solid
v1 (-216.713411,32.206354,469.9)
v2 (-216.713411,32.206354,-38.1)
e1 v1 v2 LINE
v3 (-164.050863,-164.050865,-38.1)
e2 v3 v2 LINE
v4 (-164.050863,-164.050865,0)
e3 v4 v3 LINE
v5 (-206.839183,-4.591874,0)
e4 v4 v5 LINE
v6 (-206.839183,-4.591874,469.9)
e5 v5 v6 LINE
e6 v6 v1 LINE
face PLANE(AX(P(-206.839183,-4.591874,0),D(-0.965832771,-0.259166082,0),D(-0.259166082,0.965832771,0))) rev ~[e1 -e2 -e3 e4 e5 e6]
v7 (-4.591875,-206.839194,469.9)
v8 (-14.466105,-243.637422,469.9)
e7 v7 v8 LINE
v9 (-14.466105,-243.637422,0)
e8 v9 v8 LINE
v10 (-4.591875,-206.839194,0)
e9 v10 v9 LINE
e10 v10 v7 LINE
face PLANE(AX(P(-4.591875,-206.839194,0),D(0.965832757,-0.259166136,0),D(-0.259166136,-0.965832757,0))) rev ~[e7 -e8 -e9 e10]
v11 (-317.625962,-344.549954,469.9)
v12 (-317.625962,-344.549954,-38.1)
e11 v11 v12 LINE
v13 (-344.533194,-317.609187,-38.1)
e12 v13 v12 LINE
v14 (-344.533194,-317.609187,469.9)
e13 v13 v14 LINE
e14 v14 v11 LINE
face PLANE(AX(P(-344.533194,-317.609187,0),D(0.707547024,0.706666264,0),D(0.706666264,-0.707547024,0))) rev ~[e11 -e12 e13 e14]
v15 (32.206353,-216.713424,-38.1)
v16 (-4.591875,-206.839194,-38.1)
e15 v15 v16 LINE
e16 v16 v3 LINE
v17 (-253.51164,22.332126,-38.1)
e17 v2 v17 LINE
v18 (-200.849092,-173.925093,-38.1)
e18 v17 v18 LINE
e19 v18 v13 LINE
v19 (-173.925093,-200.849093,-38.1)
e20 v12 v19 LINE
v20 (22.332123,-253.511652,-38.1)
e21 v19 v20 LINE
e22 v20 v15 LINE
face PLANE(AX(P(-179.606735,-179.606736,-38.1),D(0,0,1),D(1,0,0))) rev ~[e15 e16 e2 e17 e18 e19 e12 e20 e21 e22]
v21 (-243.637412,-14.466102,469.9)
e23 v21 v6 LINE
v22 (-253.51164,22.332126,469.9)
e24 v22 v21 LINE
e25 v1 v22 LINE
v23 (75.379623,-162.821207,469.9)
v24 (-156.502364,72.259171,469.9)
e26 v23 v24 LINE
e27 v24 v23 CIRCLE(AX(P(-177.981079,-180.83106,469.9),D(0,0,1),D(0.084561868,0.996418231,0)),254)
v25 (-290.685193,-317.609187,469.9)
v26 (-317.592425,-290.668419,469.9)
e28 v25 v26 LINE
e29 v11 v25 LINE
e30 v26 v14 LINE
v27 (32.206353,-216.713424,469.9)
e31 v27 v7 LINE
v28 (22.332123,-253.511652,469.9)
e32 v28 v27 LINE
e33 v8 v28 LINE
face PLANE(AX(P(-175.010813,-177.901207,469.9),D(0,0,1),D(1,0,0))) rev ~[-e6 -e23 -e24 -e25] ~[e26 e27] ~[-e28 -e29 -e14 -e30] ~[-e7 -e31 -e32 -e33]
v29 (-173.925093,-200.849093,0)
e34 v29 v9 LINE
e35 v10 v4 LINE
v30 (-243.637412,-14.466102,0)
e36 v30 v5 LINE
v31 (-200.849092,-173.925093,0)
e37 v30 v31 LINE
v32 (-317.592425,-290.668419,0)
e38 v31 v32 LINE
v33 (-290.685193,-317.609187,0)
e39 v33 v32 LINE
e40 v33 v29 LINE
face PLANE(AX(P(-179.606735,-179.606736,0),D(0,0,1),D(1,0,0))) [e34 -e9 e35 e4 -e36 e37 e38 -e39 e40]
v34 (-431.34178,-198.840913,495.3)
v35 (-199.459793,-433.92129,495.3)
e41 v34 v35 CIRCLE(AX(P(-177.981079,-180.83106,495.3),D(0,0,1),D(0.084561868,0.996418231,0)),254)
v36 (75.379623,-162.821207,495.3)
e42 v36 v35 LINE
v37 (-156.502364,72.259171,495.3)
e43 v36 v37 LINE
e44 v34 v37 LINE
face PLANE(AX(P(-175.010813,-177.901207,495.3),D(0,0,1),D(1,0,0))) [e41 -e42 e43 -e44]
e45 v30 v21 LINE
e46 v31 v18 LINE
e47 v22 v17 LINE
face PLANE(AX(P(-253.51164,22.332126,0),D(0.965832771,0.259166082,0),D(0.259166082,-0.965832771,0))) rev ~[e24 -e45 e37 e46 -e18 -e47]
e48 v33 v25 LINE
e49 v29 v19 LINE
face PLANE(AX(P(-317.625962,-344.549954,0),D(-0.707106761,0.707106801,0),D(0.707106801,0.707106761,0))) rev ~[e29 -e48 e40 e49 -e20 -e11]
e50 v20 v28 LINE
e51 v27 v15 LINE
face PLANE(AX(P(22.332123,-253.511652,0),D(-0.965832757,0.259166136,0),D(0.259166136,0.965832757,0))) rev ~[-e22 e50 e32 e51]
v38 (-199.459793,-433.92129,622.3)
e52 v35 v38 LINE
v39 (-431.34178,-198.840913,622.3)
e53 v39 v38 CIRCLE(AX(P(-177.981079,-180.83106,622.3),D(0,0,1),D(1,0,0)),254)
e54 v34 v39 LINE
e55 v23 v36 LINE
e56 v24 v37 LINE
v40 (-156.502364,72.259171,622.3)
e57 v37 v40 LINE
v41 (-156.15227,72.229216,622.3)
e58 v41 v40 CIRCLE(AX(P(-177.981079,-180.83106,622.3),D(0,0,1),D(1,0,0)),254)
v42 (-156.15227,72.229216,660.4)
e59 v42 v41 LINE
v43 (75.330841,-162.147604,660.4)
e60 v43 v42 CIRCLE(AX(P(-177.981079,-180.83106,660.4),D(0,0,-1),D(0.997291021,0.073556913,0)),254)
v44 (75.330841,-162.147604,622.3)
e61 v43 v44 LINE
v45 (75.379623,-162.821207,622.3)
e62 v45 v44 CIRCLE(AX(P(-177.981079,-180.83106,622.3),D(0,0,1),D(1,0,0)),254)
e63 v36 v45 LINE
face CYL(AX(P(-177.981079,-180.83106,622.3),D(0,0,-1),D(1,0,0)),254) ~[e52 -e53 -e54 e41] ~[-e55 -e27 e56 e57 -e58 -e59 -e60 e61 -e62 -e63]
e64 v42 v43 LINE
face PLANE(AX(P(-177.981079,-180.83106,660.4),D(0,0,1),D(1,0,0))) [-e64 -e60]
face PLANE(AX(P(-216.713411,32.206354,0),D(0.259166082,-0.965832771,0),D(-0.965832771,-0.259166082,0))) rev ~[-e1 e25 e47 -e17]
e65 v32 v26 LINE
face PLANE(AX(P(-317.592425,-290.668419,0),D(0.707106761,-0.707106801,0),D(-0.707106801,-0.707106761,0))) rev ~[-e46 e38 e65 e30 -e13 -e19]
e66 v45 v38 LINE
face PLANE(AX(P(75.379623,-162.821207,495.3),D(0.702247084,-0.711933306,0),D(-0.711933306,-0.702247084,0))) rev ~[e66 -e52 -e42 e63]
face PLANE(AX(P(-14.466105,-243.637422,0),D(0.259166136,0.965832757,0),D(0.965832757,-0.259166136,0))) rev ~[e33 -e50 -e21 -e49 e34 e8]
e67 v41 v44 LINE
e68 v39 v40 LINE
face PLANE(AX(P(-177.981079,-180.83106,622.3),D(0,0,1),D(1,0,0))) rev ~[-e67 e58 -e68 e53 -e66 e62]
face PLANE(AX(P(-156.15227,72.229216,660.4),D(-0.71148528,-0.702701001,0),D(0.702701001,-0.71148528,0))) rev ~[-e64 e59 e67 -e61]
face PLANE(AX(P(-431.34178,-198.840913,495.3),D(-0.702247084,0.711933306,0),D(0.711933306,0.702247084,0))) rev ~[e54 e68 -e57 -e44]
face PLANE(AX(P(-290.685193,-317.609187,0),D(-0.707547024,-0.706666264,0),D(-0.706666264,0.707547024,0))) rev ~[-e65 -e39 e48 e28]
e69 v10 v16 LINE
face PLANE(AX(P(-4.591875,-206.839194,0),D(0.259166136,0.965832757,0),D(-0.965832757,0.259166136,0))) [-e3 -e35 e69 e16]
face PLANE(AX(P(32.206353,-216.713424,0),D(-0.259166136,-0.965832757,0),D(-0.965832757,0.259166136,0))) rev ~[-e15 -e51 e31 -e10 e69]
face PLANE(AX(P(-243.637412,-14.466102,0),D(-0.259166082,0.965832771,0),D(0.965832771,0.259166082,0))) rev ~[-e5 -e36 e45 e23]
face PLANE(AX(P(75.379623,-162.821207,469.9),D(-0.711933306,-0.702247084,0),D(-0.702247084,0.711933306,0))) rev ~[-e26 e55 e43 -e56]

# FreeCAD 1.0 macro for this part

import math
import FreeCAD as App
import Part
import Sketcher

V = App.Vector
Q = App.Units.Quantity


def add_polygon(sketch, points):
    """Adds a closed chain of lines whose ends are joined by coincident constraints."""
    first, n = sketch.GeometryCount, len(points)
    for a, b in zip(points, points[1:] + points[:1]):
        sketch.addGeometry(Part.LineSegment(App.Vector(*a, 0), App.Vector(*b, 0)), False)
    for i in range(n):
        sketch.addConstraint(Sketcher.Constraint("Coincident", first + i, 2, first + (i + 1) % n, 1))

doc = App.newDocument("Part")
body = doc.addObject("PartDesign::Body", "Body")

sketch1 = body.newObject("Sketcher::SketchObject", "Sketch")
sketch1.AttachmentSupport = (doc.getObject("XY_Plane"), [""])
sketch1.MapMode = "FlatFace"
add_polygon(sketch1, [(-200.849092, -173.925093), (-344.533194, -317.609187), (-317.625962, -344.549954), (-173.925093, -200.849093), (22.332123, -253.511652), (32.206353, -216.713424), (-4.591875, -206.839194), (-164.050863, -164.050865), (-216.713411, 32.206354), (-253.51164, 22.332126)])
sketch1.addConstraint(Sketcher.Constraint("Distance", 0, Q("8 in")))
sketch1.addConstraint(Sketcher.Constraint("Distance", 3, Q("8 in")))
sketch1.addConstraint(Sketcher.Constraint("Distance", 7, Q("8 in")))
sketch1.addConstraint(Sketcher.Constraint("Distance", 9, Q("8 in")))
sketch1.addConstraint(Sketcher.Constraint("Distance", 4, Q("1.5 in")))
sketch1.addConstraint(Sketcher.Constraint("Distance", 5, Q("1.5 in")))
sketch1.addConstraint(Sketcher.Constraint("Distance", 6, Q("6.5 in")))
sketch1.addConstraint(Sketcher.Constraint("Distance", 8, Q("1.5 in")))
sketch1.addConstraint(Sketcher.Constraint("DistanceX", 5, 2, 3, 2, Q("1.0599999 in")))
sketch1.addConstraint(Sketcher.Constraint("DistanceX", 9, 2, 2, 2, Q("1.06 in")))
sketch1.addConstraint(Sketcher.Constraint("DistanceY", 2, 2, 9, 2, Q("1.06 in")))
sketch1.addConstraint(Sketcher.Constraint("DistanceX", 0, 2, 2, 2, 170.608101))
sketch1.addConstraint(Sketcher.Constraint("DistanceY", 5, 2, 2, 2, 5.990101))
sketch1.addConstraint(Sketcher.Constraint("DistanceY", 3, 2, -1, 1, 253.511652))
sketch1.addConstraint(Sketcher.Constraint("DistanceX", 7, 2, -1, 1, 216.713411))
sketch1.addConstraint(Sketcher.Constraint("DistanceX", 8, 2, -1, 1, 253.51164))
sketch1.addConstraint(Sketcher.Constraint("DistanceX", 9, 2, -1, 1, 200.849092))
sketch1.addConstraint(Sketcher.Constraint("DistanceX", 0, 2, 1, 2, 26.907232))
sketch1.addConstraint(Sketcher.Constraint("DistanceY", 1, 2, 2, 2, 143.700861))
sketch1.addConstraint(Sketcher.Constraint("DistanceY", 3, 2, 2, 2, 52.662559))
pad1 = body.newObject("PartDesign::Pad", "Pad")
pad1.Profile = sketch1
pad1.Length = Q("1.5 in")
pad1.Reversed = True

sketch2 = body.newObject("Sketcher::SketchObject", "Sketch001")
sketch2.AttachmentSupport = (doc.getObject("XY_Plane"), [""])
sketch2.MapMode = "FlatFace"
add_polygon(sketch2, [(-290.685193, -317.609187), (-317.592425, -290.668419), (-344.533194, -317.609187), (-317.625962, -344.549954)])
sketch2.addConstraint(Sketcher.Constraint("Parallel", 0, 2))
sketch2.addConstraint(Sketcher.Constraint("Parallel", 1, 3))
sketch2.addConstraint(Sketcher.Constraint("Horizontal", 1, 2, 3, 2))
sketch2.addConstraint(Sketcher.Constraint("Angle", 1, Q("-135.000002 deg")))
sketch2.addConstraint(Sketcher.Constraint("Distance", 1, Q("1.5 in")))
sketch2.addConstraint(Sketcher.Constraint("DistanceX", 1, 2, 3, 2, Q("2.12 in")))
sketch2.addConstraint(Sketcher.Constraint("DistanceY", 0, 2, -1, 1, 290.668419))
sketch2.addConstraint(Sketcher.Constraint("DistanceX", 0, 2, -1, 1, 317.592425))
pad2 = body.newObject("PartDesign::Pad", "Pad001")
pad2.Profile = sketch2
pad2.Length = Q("18.5 in")

sketch3 = body.newObject("Sketcher::SketchObject", "Sketch002")
sketch3.AttachmentSupport = (doc.getObject("XY_Plane"), [""])
sketch3.MapMode = "FlatFace"
add_polygon(sketch3, [(-4.591875, -206.839194), (-14.466105, -243.637422), (22.332123, -253.511652), (32.206353, -216.713424)])
sketch3.addConstraint(Sketcher.Constraint("Perpendicular", 0, 1))
sketch3.addConstraint(Sketcher.Constraint("Perpendicular", 1, 2))
sketch3.addConstraint(Sketcher.Constraint("Perpendicular", 2, 3))
sketch3.addConstraint(Sketcher.Constraint("Equal", 0, 1))
sketch3.addConstraint(Sketcher.Constraint("Distance", 0, Q("1.5 in")))
sketch3.addConstraint(Sketcher.Constraint("DistanceY", 0, 2, 2, 2, Q("1.0599999 in")))
sketch3.addConstraint(Sketcher.Constraint("DistanceY", 0, 2, -1, 1, 243.637422))
sketch3.addConstraint(Sketcher.Constraint("DistanceX", 0, 2, -1, 1, 14.466105))
pad3 = body.newObject("PartDesign::Pad", "Pad002")
pad3.Profile = sketch3
pad3.Length = Q("18.5 in")

sketch4 = body.newObject("Sketcher::SketchObject", "Sketch003")
sketch4.AttachmentSupport = (doc.getObject("XY_Plane"), [""])
sketch4.MapMode = "FlatFace"
add_polygon(sketch4, [(-253.51164, 22.332126), (-243.637412, -14.466102), (-206.839183, -4.591874), (-216.713411, 32.206354)])
sketch4.addConstraint(Sketcher.Constraint("Perpendicular", 0, 1))
sketch4.addConstraint(Sketcher.Constraint("Perpendicular", 1, 2))
sketch4.addConstraint(Sketcher.Constraint("Perpendicular", 2, 3))
sketch4.addConstraint(Sketcher.Constraint("Equal", 0, 1))
sketch4.addConstraint(Sketcher.Constraint("Distance", 0, Q("1.5 in")))
sketch4.addConstraint(Sketcher.Constraint("DistanceX", 0, 2, 2, 2, Q("1.06 in")))
sketch4.addConstraint(Sketcher.Constraint("DistanceX", 0, 2, -1, 1, 243.637412))
sketch4.addConstraint(Sketcher.Constraint("DistanceY", 0, 2, -1, 1, 14.466102))
pad4 = body.newObject("PartDesign::Pad", "Pad003")
pad4.Profile = sketch4
pad4.Length = Q("18.5 in")

sketch5 = body.newObject("Sketcher::SketchObject", "Sketch004")
sketch5.AttachmentSupport = (doc.getObject("XY_Plane"), [""])
sketch5.MapMode = "FlatFace"
sketch5.AttachmentOffset = App.Placement(V(0, 0, 18.5 * 25.4), App.Rotation())
sketch5.addGeometry(Part.LineSegment(V(75.379623, -162.821207, 0), V(-156.502364, 72.259171, 0)), False)
sketch5.addGeometry(Part.ArcOfCircle(Part.Circle(V(-177.981079, -180.83106, 0), V(0, 0, 1), 254), math.radians(85.149169), math.radians(364.065965)), False)
sketch5.addConstraint(Sketcher.Constraint("Coincident", 0, 1, 1, 2))
sketch5.addConstraint(Sketcher.Constraint("Coincident", 1, 1, 0, 2))
sketch5.addConstraint(Sketcher.Constraint("Radius", 1, Q("10 in")))
sketch5.addConstraint(Sketcher.Constraint("Distance", 0, Q("13 in")))
sketch5.addConstraint(Sketcher.Constraint("DistanceX", 1, 3, 0, 1, 253.360702))
sketch5.addConstraint(Sketcher.Constraint("DistanceX", 1, 3, -1, 1, 177.981079))
sketch5.addConstraint(Sketcher.Constraint("DistanceY", 1, 3, -1, 1, 180.83106))
pad5 = body.newObject("PartDesign::Pad", "Pad004")
pad5.Profile = sketch5
pad5.Length = Q("1 in")

sketch6 = body.newObject("Sketcher::SketchObject", "Sketch005")
sketch6.AttachmentSupport = (doc.getObject("XY_Plane"), [""])
sketch6.MapMode = "FlatFace"
sketch6.AttachmentOffset = App.Placement(V(0, 0, 19.5 * 25.4), App.Rotation())
sketch6.addGeometry(Part.LineSegment(V(75.379623, -162.821207, 0), V(-199.459793, -433.92129, 0)), False)
sketch6.addGeometry(Part.ArcOfCircle(Part.Circle(V(-177.981079, -180.83106, 0), V(0, 0, 1), 254), math.radians(-94.850831), math.radians(4.065965)), False)
sketch6.addGeometry(Part.ArcOfCircle(Part.Circle(V(-177.981079, -180.83106, 0), V(0, 0, 1), 254), math.radians(85.149169), math.radians(184.065965)), False)
sketch6.addGeometry(Part.LineSegment(V(-431.34178, -198.840913, 0), V(-156.502364, 72.259171, 0)), False)
sketch6.addConstraint(Sketcher.Constraint("Coincident", 0, 1, 1, 2))
sketch6.addConstraint(Sketcher.Constraint("Coincident", 1, 1, 0, 2))
sketch6.addConstraint(Sketcher.Constraint("Coincident", 2, 1, 3, 2))
sketch6.addConstraint(Sketcher.Constraint("Coincident", 3, 1, 2, 2))
sketch6.addConstraint(Sketcher.Constraint("Coincident", 2, 3, 1, 3))
sketch6.addConstraint(Sketcher.Constraint("Equal", 1, 2))
sketch6.addConstraint(Sketcher.Constraint("Parallel", 0, 3))
sketch6.addConstraint(Sketcher.Constraint("Equal", 0, 3))
sketch6.addConstraint(Sketcher.Constraint("Radius", 1, Q("10 in")))
sketch6.addConstraint(Sketcher.Constraint("DistanceX", 2, 3, 0, 1, 253.360702))
sketch6.addConstraint(Sketcher.Constraint("DistanceX", 1, 3, -1, 1, 177.981079))
sketch6.addConstraint(Sketcher.Constraint("DistanceY", 1, 3, -1, 1, 180.83106))
sketch6.addConstraint(Sketcher.Constraint("DistanceY", 1, 1, -1, 1, 433.92129))
pad6 = body.newObject("PartDesign::Pad", "Pad005")
pad6.Profile = sketch6
pad6.Length = Q("5 in")

sketch7 = body.newObject("Sketcher::SketchObject", "Sketch006")
sketch7.AttachmentSupport = (doc.getObject("XY_Plane"), [""])
sketch7.MapMode = "FlatFace"
sketch7.AttachmentOffset = App.Placement(V(0, 0, 24.5 * 25.4), App.Rotation())
sketch7.addGeometry(Part.Circle(V(-177.981079, -180.83106, 0), V(0, 0, 1), 254), False)
sketch7.addConstraint(Sketcher.Constraint("Diameter", 0, Q("20 in")))
sketch7.addConstraint(Sketcher.Constraint("DistanceX", 0, 3, -1, 1, 177.981079))
sketch7.addConstraint(Sketcher.Constraint("DistanceY", 0, 3, -1, 1, 180.83106))
pad7 = body.newObject("PartDesign::Pad", "Pad006")
pad7.Profile = sketch7
pad7.Length = Q("1.5 in")

sketch8 = body.newObject("Sketcher::SketchObject", "Sketch007")
sketch8.AttachmentSupport = (doc.getObject("XY_Plane"), [""])
sketch8.MapMode = "FlatFace"
sketch8.AttachmentOffset = App.Placement(V(0, 0, 26 * 25.4), App.Rotation())
sketch8.addGeometry(Part.ArcOfCircle(Part.Circle(V(-177.981079, -180.83106, 0), V(0, 0, 1), 254), math.radians(4.21831), math.radians(85.069908)), False)
sketch8.addGeometry(Part.LineSegment(V(-156.15227, 72.229216, 0), V(75.330841, -162.147604, 0)), False)
sketch8.addConstraint(Sketcher.Constraint("Coincident", 0, 1, 1, 2))
sketch8.addConstraint(Sketcher.Constraint("Coincident", 1, 1, 0, 2))
sketch8.addConstraint(Sketcher.Constraint("Radius", 0, Q("10 in")))
sketch8.addConstraint(Sketcher.Constraint("Distance", 1, 329.419071))
sketch8.addConstraint(Sketcher.Constraint("DistanceX", 0, 3, -1, 1, 177.981079))
sketch8.addConstraint(Sketcher.Constraint("DistanceY", 0, 3, -1, 1, 180.83106))
sketch8.addConstraint(Sketcher.Constraint("DistanceX", -1, 1, 0, 1, 75.330841))
pocket1 = body.newObject("PartDesign::Pocket", "Pocket")
pocket1.Profile = sketch8
pocket1.Length = Q("1.5 in")

doc.recompute()
